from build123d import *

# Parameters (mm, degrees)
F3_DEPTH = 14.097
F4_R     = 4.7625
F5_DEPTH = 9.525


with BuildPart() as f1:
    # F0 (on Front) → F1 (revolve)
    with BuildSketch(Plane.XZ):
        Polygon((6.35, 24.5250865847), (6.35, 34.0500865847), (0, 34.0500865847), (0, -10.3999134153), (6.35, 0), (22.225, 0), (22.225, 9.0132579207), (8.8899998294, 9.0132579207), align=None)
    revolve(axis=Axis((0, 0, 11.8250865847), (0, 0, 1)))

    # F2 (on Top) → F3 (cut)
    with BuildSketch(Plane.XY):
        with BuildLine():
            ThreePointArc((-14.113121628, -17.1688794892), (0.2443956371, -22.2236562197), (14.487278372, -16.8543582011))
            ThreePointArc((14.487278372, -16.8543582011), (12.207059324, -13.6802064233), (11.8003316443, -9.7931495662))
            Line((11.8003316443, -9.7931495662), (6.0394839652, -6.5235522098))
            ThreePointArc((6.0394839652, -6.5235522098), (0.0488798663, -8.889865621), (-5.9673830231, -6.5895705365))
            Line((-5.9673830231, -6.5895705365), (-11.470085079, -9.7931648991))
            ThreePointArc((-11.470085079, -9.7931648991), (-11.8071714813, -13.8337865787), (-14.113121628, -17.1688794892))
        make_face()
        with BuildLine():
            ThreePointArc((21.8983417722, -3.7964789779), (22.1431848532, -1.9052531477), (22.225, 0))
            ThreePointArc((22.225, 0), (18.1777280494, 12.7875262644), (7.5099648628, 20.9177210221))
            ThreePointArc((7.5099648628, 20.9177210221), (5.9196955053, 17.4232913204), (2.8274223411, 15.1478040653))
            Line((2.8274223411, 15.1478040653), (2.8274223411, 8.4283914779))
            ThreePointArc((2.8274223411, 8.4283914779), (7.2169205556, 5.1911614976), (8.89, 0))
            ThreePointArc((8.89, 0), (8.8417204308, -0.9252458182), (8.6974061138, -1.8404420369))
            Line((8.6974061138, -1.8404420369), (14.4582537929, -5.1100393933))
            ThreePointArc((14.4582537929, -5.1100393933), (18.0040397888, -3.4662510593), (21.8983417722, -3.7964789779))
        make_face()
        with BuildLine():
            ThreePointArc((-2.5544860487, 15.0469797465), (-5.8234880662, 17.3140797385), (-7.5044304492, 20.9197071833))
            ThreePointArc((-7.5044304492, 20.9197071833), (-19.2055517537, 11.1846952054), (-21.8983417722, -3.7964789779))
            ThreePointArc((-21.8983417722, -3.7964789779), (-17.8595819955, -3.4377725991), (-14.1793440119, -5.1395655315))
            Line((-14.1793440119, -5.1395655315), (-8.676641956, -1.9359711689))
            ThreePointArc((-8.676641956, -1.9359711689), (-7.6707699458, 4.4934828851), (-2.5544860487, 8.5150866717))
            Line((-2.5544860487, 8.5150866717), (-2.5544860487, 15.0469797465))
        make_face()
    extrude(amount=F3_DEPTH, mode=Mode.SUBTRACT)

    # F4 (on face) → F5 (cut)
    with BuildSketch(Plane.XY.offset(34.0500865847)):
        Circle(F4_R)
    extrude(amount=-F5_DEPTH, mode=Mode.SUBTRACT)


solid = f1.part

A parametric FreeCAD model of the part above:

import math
import FreeCAD as App
import Part
import Sketcher

V = App.Vector
Q = App.Units.Quantity


def add_polygon(sketch, points):
    """Adds a closed chain of lines whose ends are joined by coincident constraints."""
    first, n = sketch.GeometryCount, len(points)
    for a, b in zip(points, points[1:] + points[:1]):
        sketch.addGeometry(Part.LineSegment(App.Vector(*a, 0), App.Vector(*b, 0)), False)
    for i in range(n):
        sketch.addConstraint(Sketcher.Constraint("Coincident", first + i, 2, first + (i + 1) % n, 1))

doc = App.newDocument("Part")
body = doc.addObject("PartDesign::Body", "Body")

# Sketch on XZ plane
sketch1 = doc.addObject("Sketcher::SketchObject", "Sketch")
body.addObject(sketch1)
sketch1.AttachmentSupport = (doc.XZ_Plane, [""])
sketch1.MapMode = "FlatFace"
add_polygon(sketch1, [(6.35, 24.525087), (6.35, 34.050087), (0, 34.050087), (0, -10.399913), (6.35, 0), (22.225, 0), (22.225, 9.013258), (8.89, 9.013258)])  # lines 0-7
sketch1.addConstraint([
    Sketcher.Constraint("Vertical", 0),
    Sketcher.Constraint("Horizontal", 1),
    Sketcher.Constraint("Vertical", 2),
    Sketcher.Constraint("Horizontal", 4),
    Sketcher.Constraint("Vertical", 5),
    Sketcher.Constraint("Horizontal", 6),
    Sketcher.Constraint("PointOnObject", 1, 2, -2),
    Sketcher.Constraint("PointOnObject", 3, 2, -1),
    Sketcher.Constraint("Vertical", 0, 2, 3, 2),
    Sketcher.Constraint("DistanceX", 1, 2, 1, 1, Q("0.25 in")),
    Sketcher.Constraint("DistanceY", 2, 2, 2, 1, Q("1.75 in")),
    Sketcher.Constraint("DistanceX", 3, 2, 6, 2, Q("0.1 in")),
    Sketcher.Constraint("DistanceX", 4, 1, 4, 2, Q("0.625 in")),
    Sketcher.Constraint("DistanceY", 0, 1, 0, 2, Q("0.375 in")),
    Sketcher.Constraint("Distance", 7, 15.71841),
    Sketcher.Constraint("DistanceY", 5, 1, 5, 2, 9.013258),
])
revolution = doc.addObject("PartDesign::Revolution", "Revolution")
body.addObject(revolution)
revolution.Profile = sketch1
revolution.ReferenceAxis = (sketch1, ["V_Axis"])
revolution.Angle = 360

# Sketch on XY plane
sketch2 = doc.addObject("Sketcher::SketchObject", "Sketch001")
body.addObject(sketch2)
sketch2.AttachmentSupport = (doc.XY_Plane, [""])
sketch2.MapMode = "FlatFace"
sketch2.addGeometry([
    Part.ArcOfCircle(Part.Circle(V(0, 0, 0), V(0, 0, 1), 22.225), math.radians(-129.420808), math.radians(-49.319069)),  # 0
    Part.ArcOfCircle(Part.Circle(V(19.328875, -10.970198, 0), V(0, 0, 1), 7.62), math.radians(171.114043), math.radians(230.55182)),  # 1
    Part.LineSegment(V(11.800332, -9.79315, 0), V(6.039484, -6.523552, 0)),  # 2
    Part.ArcOfCircle(Part.Circle(V(0, 0, 0), V(0, 0, 1), 8.89), math.radians(-132.163358), math.radians(-47.206581)),  # 3
    Part.LineSegment(V(-5.967383, -6.589571, 0), V(-11.470085, -9.793165, 0)),  # 4
    Part.ArcOfCircle(Part.Circle(V(-19.207073, -11.182083, 0), V(0, 0, 1), 7.860666), math.radians(-49.606728), math.radians(10.177145)),  # 5
    Part.ArcOfCircle(Part.Circle(V(0, 0, 0), V(0, 0, 1), 22.225), math.radians(-9.835511), math.radians(0)),  # 6
    Part.ArcOfCircle(Part.Circle(V(0, 0, 0), V(0, 0, 1), 22.225), math.radians(0), math.radians(70.250641)),  # 7
    Part.ArcOfCircle(Part.Circle(V(0.00294, 22.225, 0), V(0, 0, 1), 7.62), math.radians(-68.243243), math.radians(-9.878469)),  # 8
    Part.LineSegment(V(2.827422, 15.147804, 0), V(2.827422, 8.428391, 0)),  # 9
    Part.ArcOfCircle(Part.Circle(V(0, 0, 0), V(0, 0, 1), 8.89), math.radians(0), math.radians(71.455249)),  # 10
    Part.ArcOfCircle(Part.Circle(V(0, 0, 0), V(0, 0, 1), 8.89), math.radians(-11.947999), math.radians(0)),  # 11
    Part.LineSegment(V(8.697406, -1.840442, 0), V(14.458254, -5.110039, 0)),  # 12
    Part.ArcOfCircle(Part.Circle(V(19.328875, -10.970198, 0), V(0, 0, 1), 7.62), math.radians(70.2936), math.radians(129.731377)),  # 13
    Part.ArcOfCircle(Part.Circle(V(0.00294, 22.225, 0), V(0, 0, 1), 7.62), math.radians(-170.13669), math.radians(-109.610257)),  # 14
    Part.ArcOfCircle(Part.Circle(V(0, 0, 0), V(0, 0, 1), 22.225), math.radians(109.7342), math.radians(189.835511)),  # 15
    Part.ArcOfCircle(Part.Circle(V(-19.207073, -11.182083, 0), V(0, 0, 1), 7.860666), math.radians(50.237558), math.radians(110.021431)),  # 16
    Part.LineSegment(V(-14.179344, -5.139566, 0), V(-8.676642, -1.935971, 0)),  # 17
    Part.ArcOfCircle(Part.Circle(V(0, 0, 0), V(0, 0, 1), 8.89), math.radians(106.698998), math.radians(192.578061)),  # 18
    Part.LineSegment(V(-2.554486, 8.515087, 0), V(-2.554486, 15.04698, 0)),  # 19
], False)
sketch2.addConstraint([
    Sketcher.Constraint("Coincident", 0, 2, 1, 2),
    Sketcher.Constraint("Coincident", 1, 1, 2, 1),
    Sketcher.Constraint("Coincident", 2, 2, 3, 2),
    Sketcher.Constraint("Coincident", 3, 1, 4, 1),
    Sketcher.Constraint("Coincident", 4, 2, 5, 2),
    Sketcher.Constraint("Coincident", 5, 1, 0, 1),
    Sketcher.Constraint("Coincident", 6, 2, 7, 1),
    Sketcher.Constraint("Coincident", 7, 2, 8, 2),
    Sketcher.Constraint("Coincident", 8, 1, 9, 1),
    Sketcher.Constraint("Coincident", 9, 2, 10, 2),
    Sketcher.Constraint("Coincident", 10, 1, 11, 2),
    Sketcher.Constraint("Coincident", 11, 1, 12, 1),
    Sketcher.Constraint("Coincident", 12, 2, 13, 2),
    Sketcher.Constraint("Coincident", 13, 1, 6, 1),
    Sketcher.Constraint("Coincident", 14, 1, 15, 1),
    Sketcher.Constraint("Coincident", 15, 2, 16, 2),
    Sketcher.Constraint("Coincident", 16, 1, 17, 1),
    Sketcher.Constraint("Coincident", 17, 2, 18, 2),
    Sketcher.Constraint("Coincident", 18, 1, 19, 1),
    Sketcher.Constraint("Coincident", 19, 2, 14, 2),
    Sketcher.Constraint("Vertical", 9),
    Sketcher.Constraint("Vertical", 19),
    Sketcher.Constraint("Coincident", 0, 3, -1, 1),
    Sketcher.Constraint("Coincident", 3, 3, -1, 1),
    Sketcher.Constraint("Coincident", 6, 3, -1, 1),
    Sketcher.Constraint("Coincident", 7, 3, -1, 1),
    Sketcher.Constraint("Coincident", 10, 3, -1, 1),
    Sketcher.Constraint("Coincident", 11, 3, -1, 1),
    Sketcher.Constraint("Coincident", 15, 3, -1, 1),
    Sketcher.Constraint("Coincident", 18, 3, -1, 1),
    Sketcher.Constraint("Coincident", 13, 3, 1, 3),
    Sketcher.Constraint("Coincident", 14, 3, 8, 3),
    Sketcher.Constraint("Coincident", 16, 3, 5, 3),
    Sketcher.Constraint("PointOnObject", 6, 2, -1),
    Sketcher.Constraint("PointOnObject", 10, 1, -1),
    Sketcher.Constraint("Radius", 1, Q("0.3 in")),
    Sketcher.Constraint("Radius", 8, Q("0.3 in")),
    Sketcher.Constraint("Radius", 13, Q("0.3 in")),
    Sketcher.Constraint("Radius", 14, Q("0.3 in")),
    Sketcher.Constraint("Radius", 3, Q("0.35 in")),
    Sketcher.Constraint("Radius", 10, Q("0.35 in")),
    Sketcher.Constraint("Radius", 18, Q("0.35 in")),
    Sketcher.Constraint("Radius", 0, Q("0.875 in")),
    Sketcher.Constraint("Radius", 6, Q("0.875 in")),
    Sketcher.Constraint("Radius", 15, Q("0.875 in")),
    Sketcher.Constraint("DistanceY", -1, 1, 8, 3, Q("0.875 in")),
    Sketcher.Constraint("DistanceX", 17, 2, -1, 1, Q("0.3416001 in")),
    Sketcher.Constraint("Radius", 5, 7.860666),
    Sketcher.Constraint("Radius", 16, 7.860666),
    Sketcher.Constraint("DistanceX", 8, 3, 8, 1, Q("0.1112001 in")),
    Sketcher.Constraint("DistanceY", 5, 1, 15, 2, 13.372401),
    Sketcher.Constraint("DistanceY", 4, 2, 16, 1, 4.653599),
    Sketcher.Constraint("DistanceY", 3, 1, 17, 2, 4.653599),
    Sketcher.Constraint("Distance", 2, 6.624019),
    Sketcher.Constraint("Distance", 4, 6.367319),
    Sketcher.Constraint("Distance", 12, 6.624019),
    Sketcher.Constraint("Distance", 17, 6.367319),
    Sketcher.Constraint("DistanceY", 9, 2, 9, 1, 6.719413),
    Sketcher.Constraint("DistanceY", 19, 1, 19, 2, 6.531893),
    Sketcher.Constraint("DistanceX", -1, 1, 0, 2, 14.487278),
    Sketcher.Constraint("DistanceX", -1, 1, 1, 1, 11.800332),
    Sketcher.Constraint("DistanceY", 1, 1, -1, 1, 9.79315),
    Sketcher.Constraint("DistanceY", 12, 2, -1, 1, 5.110039),
])
pocket1 = doc.addObject("PartDesign::Pocket", "Pocket")
body.addObject(pocket1)
pocket1.Profile = sketch2
pocket1.Length = Q("0.555 in")
pocket1.Reversed = True

# Sketch on XY plane
sketch3 = doc.addObject("Sketcher::SketchObject", "Sketch002")
body.addObject(sketch3)
sketch3.AttachmentSupport = (doc.XY_Plane, [""])
sketch3.MapMode = "FlatFace"
sketch3.AttachmentOffset = App.Placement(V(0, 0, 34.050087), App.Rotation())
sketch3.addGeometry(Part.Circle(V(0, 0, 0), V(0, 0, 1), 4.7625), False)
sketch3.addConstraint([
    Sketcher.Constraint("Coincident", 0, 3, -1, 1),
    Sketcher.Constraint("Diameter", 0, Q("0.375 in")),
])
pocket2 = doc.addObject("PartDesign::Pocket", "Pocket001")
body.addObject(pocket2)
pocket2.Profile = sketch3
pocket2.Length = Q("0.375 in")

doc.recompute()
